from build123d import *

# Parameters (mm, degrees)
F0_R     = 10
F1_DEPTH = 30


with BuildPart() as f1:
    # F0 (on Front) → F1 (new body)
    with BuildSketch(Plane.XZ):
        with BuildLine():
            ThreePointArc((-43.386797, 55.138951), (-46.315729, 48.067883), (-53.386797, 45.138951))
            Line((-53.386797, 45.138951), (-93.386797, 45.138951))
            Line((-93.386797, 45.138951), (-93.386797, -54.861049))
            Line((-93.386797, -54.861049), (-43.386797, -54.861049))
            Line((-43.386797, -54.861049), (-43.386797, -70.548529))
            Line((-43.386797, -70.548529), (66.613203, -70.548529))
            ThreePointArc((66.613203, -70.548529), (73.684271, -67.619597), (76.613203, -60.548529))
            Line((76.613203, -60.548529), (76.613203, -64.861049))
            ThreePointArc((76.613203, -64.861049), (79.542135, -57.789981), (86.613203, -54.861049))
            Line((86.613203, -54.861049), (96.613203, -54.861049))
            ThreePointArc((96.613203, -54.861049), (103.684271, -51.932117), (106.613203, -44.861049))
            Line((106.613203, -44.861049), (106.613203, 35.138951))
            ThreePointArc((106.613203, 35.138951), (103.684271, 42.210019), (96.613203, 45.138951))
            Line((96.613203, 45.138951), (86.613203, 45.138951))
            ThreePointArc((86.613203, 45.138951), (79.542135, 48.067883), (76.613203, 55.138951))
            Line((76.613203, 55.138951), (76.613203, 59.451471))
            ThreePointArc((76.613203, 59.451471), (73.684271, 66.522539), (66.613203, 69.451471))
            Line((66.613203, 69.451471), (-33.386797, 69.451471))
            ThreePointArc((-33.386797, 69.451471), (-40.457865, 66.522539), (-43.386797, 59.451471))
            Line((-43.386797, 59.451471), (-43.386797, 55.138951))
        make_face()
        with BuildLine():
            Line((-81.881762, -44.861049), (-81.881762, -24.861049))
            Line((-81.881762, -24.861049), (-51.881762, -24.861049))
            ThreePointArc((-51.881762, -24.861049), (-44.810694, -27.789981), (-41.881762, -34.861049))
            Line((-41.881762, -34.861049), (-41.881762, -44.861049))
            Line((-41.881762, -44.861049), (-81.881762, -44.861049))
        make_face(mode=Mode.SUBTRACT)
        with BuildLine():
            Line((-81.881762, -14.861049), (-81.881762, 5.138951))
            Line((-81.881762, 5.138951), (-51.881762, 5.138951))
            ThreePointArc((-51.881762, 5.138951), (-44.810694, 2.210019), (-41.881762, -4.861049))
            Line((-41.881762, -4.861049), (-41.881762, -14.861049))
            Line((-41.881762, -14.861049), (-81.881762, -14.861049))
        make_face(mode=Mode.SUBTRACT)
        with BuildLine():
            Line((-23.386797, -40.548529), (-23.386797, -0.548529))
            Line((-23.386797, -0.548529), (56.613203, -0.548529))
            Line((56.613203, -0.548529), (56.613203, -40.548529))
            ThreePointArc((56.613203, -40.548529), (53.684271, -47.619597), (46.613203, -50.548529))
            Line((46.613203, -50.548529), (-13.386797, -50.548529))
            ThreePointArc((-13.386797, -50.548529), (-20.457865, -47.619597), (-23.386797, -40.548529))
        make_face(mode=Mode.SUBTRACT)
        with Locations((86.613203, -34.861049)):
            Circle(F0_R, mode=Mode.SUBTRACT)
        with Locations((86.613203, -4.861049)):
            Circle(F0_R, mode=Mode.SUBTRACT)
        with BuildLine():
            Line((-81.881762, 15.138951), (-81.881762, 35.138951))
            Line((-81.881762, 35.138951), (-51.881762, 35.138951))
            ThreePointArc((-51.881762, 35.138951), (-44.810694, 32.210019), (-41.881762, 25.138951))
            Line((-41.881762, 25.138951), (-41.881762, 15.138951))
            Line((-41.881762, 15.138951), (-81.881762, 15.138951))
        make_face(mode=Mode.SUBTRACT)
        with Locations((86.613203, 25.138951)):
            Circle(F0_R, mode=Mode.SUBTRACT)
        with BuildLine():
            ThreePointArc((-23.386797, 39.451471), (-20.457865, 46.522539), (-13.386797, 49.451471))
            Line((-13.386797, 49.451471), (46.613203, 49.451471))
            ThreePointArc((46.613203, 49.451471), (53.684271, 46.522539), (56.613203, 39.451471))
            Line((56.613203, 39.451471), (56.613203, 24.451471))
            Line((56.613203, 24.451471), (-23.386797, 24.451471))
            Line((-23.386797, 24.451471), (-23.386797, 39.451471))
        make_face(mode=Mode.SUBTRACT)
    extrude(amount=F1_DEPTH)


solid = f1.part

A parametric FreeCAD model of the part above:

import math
import FreeCAD as App
import Part
import Sketcher

V = App.Vector
Q = App.Units.Quantity

doc = App.newDocument("Part")
body = doc.addObject("PartDesign::Body", "Body")

# Sketch on XZ plane
sketch1 = body.newObject("Sketcher::SketchObject", "Sketch")
sketch1.AttachmentSupport = (doc.getObject("XZ_Plane"), [""])
sketch1.MapMode = "FlatFace"
sketch1.addGeometry([
    Part.ArcOfCircle(Part.Circle(V(-53.4, 55.1, 0), V(0, 0, 1), 10), math.radians(-90), math.radians(0)),  # 0
    Part.LineSegment(V(-53.4, 45.1, 0), V(-93.4, 45.1, 0)),  # 1
    Part.LineSegment(V(-93.4, 45.1, 0), V(-93.4, -54.9, 0)),  # 2
    Part.LineSegment(V(-93.4, -54.9, 0), V(-43.4, -54.9, 0)),  # 3
    Part.LineSegment(V(-43.4, -54.9, 0), V(-43.4, -70.5, 0)),  # 4
    Part.LineSegment(V(-43.4, -70.5, 0), V(66.6, -70.5, 0)),  # 5
    Part.ArcOfCircle(Part.Circle(V(66.6, -60.5, 0), V(0, 0, 1), 10), math.radians(-90), math.radians(0)),  # 6
    Part.LineSegment(V(76.6, -60.5, 0), V(76.6, -64.9, 0)),  # 7
    Part.ArcOfCircle(Part.Circle(V(86.6, -64.9, 0), V(0, 0, 1), 10), math.radians(90), math.radians(180)),  # 8
    Part.LineSegment(V(86.6, -54.9, 0), V(96.6, -54.9, 0)),  # 9
    Part.ArcOfCircle(Part.Circle(V(96.6, -44.9, 0), V(0, 0, 1), 10), math.radians(-90), math.radians(0)),  # 10
    Part.LineSegment(V(106.6, -44.9, 0), V(106.6, 35.1, 0)),  # 11
    Part.ArcOfCircle(Part.Circle(V(96.6, 35.1, 0), V(0, 0, 1), 10), math.radians(0), math.radians(90)),  # 12
    Part.LineSegment(V(96.6, 45.1, 0), V(86.6, 45.1, 0)),  # 13
    Part.ArcOfCircle(Part.Circle(V(86.6, 55.1, 0), V(0, 0, 1), 10), math.radians(180), math.radians(270)),  # 14
    Part.LineSegment(V(76.6, 55.1, 0), V(76.6, 59.5, 0)),  # 15
    Part.ArcOfCircle(Part.Circle(V(66.6, 59.5, 0), V(0, 0, 1), 10), math.radians(0), math.radians(90)),  # 16
    Part.LineSegment(V(66.6, 69.5, 0), V(-33.4, 69.5, 0)),  # 17
    Part.ArcOfCircle(Part.Circle(V(-33.4, 59.5, 0), V(0, 0, 1), 10), math.radians(90), math.radians(180)),  # 18
    Part.LineSegment(V(-43.4, 59.5, 0), V(-43.4, 55.1, 0)),  # 19
    Part.LineSegment(V(-41.9, -44.9, 0), V(-81.9, -44.9, 0)),  # 20
    Part.LineSegment(V(-81.9, -44.9, 0), V(-81.9, -24.9, 0)),  # 21
    Part.LineSegment(V(-81.9, -24.9, 0), V(-51.9, -24.9, 0)),  # 22
    Part.ArcOfCircle(Part.Circle(V(-51.9, -34.9, 0), V(0, 0, 1), 10), math.radians(0), math.radians(90)),  # 23
    Part.LineSegment(V(-41.9, -34.9, 0), V(-41.9, -44.9, 0)),  # 24
    Part.LineSegment(V(-41.9, -14.9, 0), V(-81.9, -14.9, 0)),  # 25
    Part.LineSegment(V(-81.9, -14.9, 0), V(-81.9, 5.1, 0)),  # 26
    Part.LineSegment(V(-81.9, 5.1, 0), V(-51.9, 5.1, 0)),  # 27
    Part.ArcOfCircle(Part.Circle(V(-51.9, -4.9, 0), V(0, 0, 1), 10), math.radians(0), math.radians(90)),  # 28
    Part.LineSegment(V(-41.9, -4.9, 0), V(-41.9, -14.9, 0)),  # 29
    Part.Circle(V(86.6, -34.9, 0), V(0, 0, 1), 10),  # 30
    Part.ArcOfCircle(Part.Circle(V(-13.4, -40.5, 0), V(0, 0, 1), 10), math.radians(180), math.radians(270)),  # 31
    Part.LineSegment(V(-23.4, -40.5, 0), V(-23.4, -0.5, 0)),  # 32
    Part.LineSegment(V(-23.4, -0.5, 0), V(56.6, -0.5, 0)),  # 33
    Part.LineSegment(V(56.6, -0.5, 0), V(56.6, -40.5, 0)),  # 34
    Part.ArcOfCircle(Part.Circle(V(46.6, -40.5, 0), V(0, 0, 1), 10), math.radians(-90), math.radians(0)),  # 35
    Part.LineSegment(V(46.6, -50.5, 0), V(-13.4, -50.5, 0)),  # 36
    Part.Circle(V(86.6, -4.9, 0), V(0, 0, 1), 10),  # 37
    Part.LineSegment(V(-41.9, 15.1, 0), V(-81.9, 15.1, 0)),  # 38
    Part.LineSegment(V(-81.9, 15.1, 0), V(-81.9, 35.1, 0)),  # 39
    Part.LineSegment(V(-81.9, 35.1, 0), V(-51.9, 35.1, 0)),  # 40
    Part.ArcOfCircle(Part.Circle(V(-51.9, 25.1, 0), V(0, 0, 1), 10), math.radians(0), math.radians(90)),  # 41
    Part.LineSegment(V(-41.9, 25.1, 0), V(-41.9, 15.1, 0)),  # 42
    Part.LineSegment(V(-23.4, 24.5, 0), V(-23.4, 39.5, 0)),  # 43
    Part.ArcOfCircle(Part.Circle(V(-13.4, 39.5, 0), V(0, 0, 1), 10), math.radians(90), math.radians(180)),  # 44
    Part.LineSegment(V(-13.4, 49.5, 0), V(46.6, 49.5, 0)),  # 45
    Part.ArcOfCircle(Part.Circle(V(46.6, 39.5, 0), V(0, 0, 1), 10), math.radians(0), math.radians(90)),  # 46
    Part.LineSegment(V(56.6, 39.5, 0), V(56.6, 24.5, 0)),  # 47
    Part.LineSegment(V(56.6, 24.5, 0), V(-23.4, 24.5, 0)),  # 48
    Part.Circle(V(86.6, 25.1, 0), V(0, 0, 1), 10),  # 49
], False)
sketch1.addConstraint([
    Sketcher.Constraint("Tangent", 0, 1, 1, 1),
    Sketcher.Constraint("Coincident", 1, 2, 2, 1),
    Sketcher.Constraint("Coincident", 2, 2, 3, 1),
    Sketcher.Constraint("Coincident", 3, 2, 4, 1),
    Sketcher.Constraint("Coincident", 4, 2, 5, 1),
    Sketcher.Constraint("Tangent", 5, 2, 6, 1),
    Sketcher.Constraint("Tangent", 6, 2, 7, 1),
    Sketcher.Constraint("Tangent", 7, 2, 8, 2),
    Sketcher.Constraint("Tangent", 8, 1, 9, 1),
    Sketcher.Constraint("Tangent", 9, 2, 10, 1),
    Sketcher.Constraint("Tangent", 10, 2, 11, 1),
    Sketcher.Constraint("Tangent", 11, 2, 12, 1),
    Sketcher.Constraint("Tangent", 12, 2, 13, 1),
    Sketcher.Constraint("Tangent", 13, 2, 14, 2),
    Sketcher.Constraint("Tangent", 14, 1, 15, 1),
    Sketcher.Constraint("Tangent", 15, 2, 16, 1),
    Sketcher.Constraint("Tangent", 16, 2, 17, 1),
    Sketcher.Constraint("Tangent", 17, 2, 18, 1),
    Sketcher.Constraint("Tangent", 18, 2, 19, 1),
    Sketcher.Constraint("Tangent", 19, 2, 0, 2),
    Sketcher.Constraint("Coincident", 20, 2, 21, 1),
    Sketcher.Constraint("Coincident", 21, 2, 22, 1),
    Sketcher.Constraint("Tangent", 22, 2, 23, 2),
    Sketcher.Constraint("Tangent", 23, 1, 24, 1),
    Sketcher.Constraint("Coincident", 24, 2, 20, 1),
    Sketcher.Constraint("Coincident", 25, 2, 26, 1),
    Sketcher.Constraint("Coincident", 26, 2, 27, 1),
    Sketcher.Constraint("Tangent", 27, 2, 28, 2),
    Sketcher.Constraint("Tangent", 28, 1, 29, 1),
    Sketcher.Constraint("Coincident", 29, 2, 25, 1),
    Sketcher.Constraint("Tangent", 31, 1, 32, 1),
    Sketcher.Constraint("Coincident", 32, 2, 33, 1),
    Sketcher.Constraint("Coincident", 33, 2, 34, 1),
    Sketcher.Constraint("Tangent", 34, 2, 35, 2),
    Sketcher.Constraint("Tangent", 35, 1, 36, 1),
    Sketcher.Constraint("Tangent", 36, 2, 31, 2),
    Sketcher.Constraint("Coincident", 38, 2, 39, 1),
    Sketcher.Constraint("Coincident", 39, 2, 40, 1),
    Sketcher.Constraint("Tangent", 40, 2, 41, 2),
    Sketcher.Constraint("Tangent", 41, 1, 42, 1),
    Sketcher.Constraint("Coincident", 42, 2, 38, 1),
    Sketcher.Constraint("Tangent", 43, 2, 44, 2),
    Sketcher.Constraint("Tangent", 44, 1, 45, 1),
    Sketcher.Constraint("Tangent", 45, 2, 46, 2),
    Sketcher.Constraint("Tangent", 46, 1, 47, 1),
    Sketcher.Constraint("Coincident", 47, 2, 48, 1),
    Sketcher.Constraint("Coincident", 48, 2, 43, 1),
    Sketcher.Constraint("Horizontal", 1),
    Sketcher.Constraint("Vertical", 2),
    Sketcher.Constraint("Horizontal", 3),
    Sketcher.Constraint("Vertical", 4),
    Sketcher.Constraint("Horizontal", 5),
    Sketcher.Constraint("Vertical", 7),
    Sketcher.Constraint("Horizontal", 9),
    Sketcher.Constraint("Vertical", 11),
    Sketcher.Constraint("Horizontal", 13),
    Sketcher.Constraint("Vertical", 15),
    Sketcher.Constraint("Horizontal", 17),
    Sketcher.Constraint("Vertical", 19),
    Sketcher.Constraint("Horizontal", 20),
    Sketcher.Constraint("Vertical", 21),
    Sketcher.Constraint("Horizontal", 22),
    Sketcher.Constraint("Vertical", 24),
    Sketcher.Constraint("Horizontal", 25),
    Sketcher.Constraint("Vertical", 26),
    Sketcher.Constraint("Horizontal", 27),
    Sketcher.Constraint("Vertical", 29),
    Sketcher.Constraint("Vertical", 32),
    Sketcher.Constraint("Horizontal", 33),
    Sketcher.Constraint("Vertical", 34),
    Sketcher.Constraint("Horizontal", 36),
    Sketcher.Constraint("Horizontal", 38),
    Sketcher.Constraint("Vertical", 39),
    Sketcher.Constraint("Horizontal", 40),
    Sketcher.Constraint("Vertical", 42),
    Sketcher.Constraint("Vertical", 43),
    Sketcher.Constraint("Horizontal", 45),
    Sketcher.Constraint("Vertical", 47),
    Sketcher.Constraint("Horizontal", 48),
    Sketcher.Constraint("Equal", 0, 6),
    Sketcher.Constraint("Equal", 6, 8),
    Sketcher.Constraint("Equal", 8, 10),
    Sketcher.Constraint("Equal", 10, 12),
    Sketcher.Constraint("Equal", 12, 14),
    Sketcher.Constraint("Equal", 14, 16),
    Sketcher.Constraint("Equal", 16, 18),
    Sketcher.Constraint("Equal", 18, 23),
    Sketcher.Constraint("Equal", 23, 28),
    Sketcher.Constraint("Equal", 28, 30),
    Sketcher.Constraint("Equal", 30, 31),
    Sketcher.Constraint("Equal", 31, 35),
    Sketcher.Constraint("Equal", 35, 37),
    Sketcher.Constraint("Equal", 37, 41),
    Sketcher.Constraint("Equal", 41, 44),
    Sketcher.Constraint("Equal", 44, 46),
    Sketcher.Constraint("Equal", 46, 49),
    Sketcher.Constraint("Horizontal", 0, 3, 14, 3),
    Sketcher.Constraint("Horizontal", 23, 3, 30, 3),
    Sketcher.Constraint("Horizontal", 28, 3, 37, 3),
    Sketcher.Constraint("Horizontal", 41, 3, 49, 3),
    Sketcher.Constraint("Horizontal", 3, 2, 8, 1),
    Sketcher.Constraint("Horizontal", 10, 2, 20, 2),
    Sketcher.Constraint("Horizontal", 11, 2, 39, 2),
    Sketcher.Constraint("Vertical", 8, 3, 14, 3),
    Sketcher.Constraint("Vertical", 23, 3, 28, 3),
    Sketcher.Constraint("Vertical", 14, 3, 30, 3),
    Sketcher.Constraint("Vertical", 30, 3, 37, 3),
    Sketcher.Constraint("Vertical", 28, 3, 41, 3),
    Sketcher.Constraint("Vertical", 31, 3, 44, 3),
    Sketcher.Constraint("Vertical", 35, 3, 46, 3),
    Sketcher.Constraint("Vertical", 37, 3, 49, 3),
    Sketcher.Constraint("Vertical", 4, 2, 18, 2),
    Sketcher.Constraint("Vertical", 21, 2, 25, 2),
    Sketcher.Constraint("Vertical", 26, 2, 38, 2),
    Sketcher.Constraint("Equal", 1, 20),
    Sketcher.Constraint("Equal", 17, 2),
    Sketcher.Constraint("Equal", 48, 11),
    Sketcher.Constraint("Equal", 7, 15),
    Sketcher.Constraint("Equal", 13, 24),
    Sketcher.Constraint("Equal", 21, 26),
    Sketcher.Constraint("Equal", 38, 32),
    Sketcher.Constraint("Equal", 26, 39),
    Sketcher.Constraint("Diameter", 30, Q("20 mm")),
    Sketcher.Constraint("DistanceX", 1, 2, 1, 1, Q("40 mm")),
    Sketcher.Constraint("DistanceX", 5, 1, 5, 2, Q("110 mm")),
    Sketcher.Constraint("DistanceX", 9, 1, 9, 2, Q("10 mm")),
    Sketcher.Constraint("DistanceY", 43, 1, 43, 2, Q("15 mm")),
    Sketcher.Constraint("DistanceY", 4, 2, 4, 1, Q("15.68748 mm")),
    Sketcher.Constraint("DistanceY", -1, 1, 0, 3, Q("55.13895 mm")),
    Sketcher.Constraint("DistanceX", 23, 3, -1, 1, Q("51.881761 mm")),
    Sketcher.Constraint("DistanceY", 28, 3, -1, 1, Q("4.861048 mm")),
    Sketcher.Constraint("DistanceY", 31, 3, -1, 1, Q("40.54853 mm")),
    Sketcher.Constraint("DistanceY", -1, 1, 44, 3, Q("39.451472 mm")),
    Sketcher.Constraint("DistanceX", 0, 3, -1, 1, Q("53.386796 mm")),
    Sketcher.Constraint("DistanceX", 31, 3, -1, 1, Q("13.386798 mm")),
])
pad1 = body.newObject("PartDesign::Pad", "Pad")
pad1.Profile = sketch1
pad1.Length = 30

doc.recompute()
